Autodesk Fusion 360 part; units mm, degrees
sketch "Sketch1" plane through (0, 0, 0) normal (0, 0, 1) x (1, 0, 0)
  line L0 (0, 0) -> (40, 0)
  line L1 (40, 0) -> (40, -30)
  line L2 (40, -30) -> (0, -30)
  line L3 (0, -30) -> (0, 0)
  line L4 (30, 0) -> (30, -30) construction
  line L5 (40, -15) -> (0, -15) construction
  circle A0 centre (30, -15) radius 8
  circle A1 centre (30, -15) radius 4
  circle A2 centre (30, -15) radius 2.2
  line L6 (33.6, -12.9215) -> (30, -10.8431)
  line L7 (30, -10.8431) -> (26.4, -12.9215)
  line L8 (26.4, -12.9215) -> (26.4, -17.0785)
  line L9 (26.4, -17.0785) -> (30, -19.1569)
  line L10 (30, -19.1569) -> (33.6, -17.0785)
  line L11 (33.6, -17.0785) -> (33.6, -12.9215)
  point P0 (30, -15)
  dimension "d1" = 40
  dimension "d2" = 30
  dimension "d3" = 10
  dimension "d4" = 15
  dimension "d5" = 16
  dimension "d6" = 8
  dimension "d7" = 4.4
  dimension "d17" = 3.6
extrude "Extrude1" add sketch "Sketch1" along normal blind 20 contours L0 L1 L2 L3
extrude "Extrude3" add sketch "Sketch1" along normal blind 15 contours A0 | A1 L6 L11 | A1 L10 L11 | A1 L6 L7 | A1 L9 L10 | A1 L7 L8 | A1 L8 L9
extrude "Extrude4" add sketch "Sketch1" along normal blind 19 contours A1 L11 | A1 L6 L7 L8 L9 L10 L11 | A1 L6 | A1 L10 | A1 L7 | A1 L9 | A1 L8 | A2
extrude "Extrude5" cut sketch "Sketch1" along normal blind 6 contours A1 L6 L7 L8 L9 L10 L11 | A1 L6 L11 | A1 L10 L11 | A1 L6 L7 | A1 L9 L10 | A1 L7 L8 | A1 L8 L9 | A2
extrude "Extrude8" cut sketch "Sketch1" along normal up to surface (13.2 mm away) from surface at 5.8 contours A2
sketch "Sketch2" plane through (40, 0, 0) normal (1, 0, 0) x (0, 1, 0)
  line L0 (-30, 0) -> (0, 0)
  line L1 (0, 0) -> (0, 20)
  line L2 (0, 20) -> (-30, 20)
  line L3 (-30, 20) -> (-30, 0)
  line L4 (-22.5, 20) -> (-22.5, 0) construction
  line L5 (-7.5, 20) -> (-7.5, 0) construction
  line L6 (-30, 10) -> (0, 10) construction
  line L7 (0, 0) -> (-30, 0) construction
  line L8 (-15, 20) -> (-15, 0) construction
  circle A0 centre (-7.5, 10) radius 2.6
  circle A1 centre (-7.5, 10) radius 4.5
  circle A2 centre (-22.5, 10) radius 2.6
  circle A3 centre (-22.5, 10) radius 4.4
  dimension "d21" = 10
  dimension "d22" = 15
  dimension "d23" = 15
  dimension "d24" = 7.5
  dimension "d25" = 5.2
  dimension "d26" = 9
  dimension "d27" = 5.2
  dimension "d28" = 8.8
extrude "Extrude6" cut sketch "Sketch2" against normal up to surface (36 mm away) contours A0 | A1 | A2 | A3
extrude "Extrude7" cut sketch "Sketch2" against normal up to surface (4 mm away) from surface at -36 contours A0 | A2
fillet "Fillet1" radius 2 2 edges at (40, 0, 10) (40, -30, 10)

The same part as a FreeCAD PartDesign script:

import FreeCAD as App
import Part
import Sketcher
from FreeCAD import Vector
Q = App.Units.Quantity


def edges_at(feature, points):
    """Names of the edges that pass closest to the given points."""
    edges = feature.Shape.Edges
    near = lambda p: min(range(len(edges)), key=lambda i: edges[i].distToShape(Part.Vertex(*p))[0])
    return sorted({f"Edge{near(p) + 1}" for p in points})


def add_polygon(sketch, points):
    """Adds a closed chain of lines whose ends are joined by coincident constraints."""
    first, n = sketch.GeometryCount, len(points)
    for a, b in zip(points, points[1:] + points[:1]):
        sketch.addGeometry(Part.LineSegment(App.Vector(*a, 0), App.Vector(*b, 0)), False)
    for i in range(n):
        sketch.addConstraint(Sketcher.Constraint("Coincident", first + i, 2, first + (i + 1) % n, 1))

doc = App.newDocument("Part")
body = doc.addObject("PartDesign::Body", "Body")

# Sketch on XY plane
sketch1 = doc.addObject("Sketcher::SketchObject", "Sketch")
body.addObject(sketch1)
sketch1.AttachmentSupport = (doc.XY_Plane, [""])
sketch1.MapMode = "FlatFace"
add_polygon(sketch1, [(40, 0), (0, 0), (0, -30), (40, -30)])  # lines 0-3
sketch1.addGeometry(Part.Circle(Vector(30, -15, 0), Vector(0, 0, 1), 8), False)  # 4
sketch1.addConstraint(Sketcher.Constraint("Horizontal", 0))
sketch1.addConstraint(Sketcher.Constraint("Vertical", 1))
sketch1.addConstraint(Sketcher.Constraint("Horizontal", 2))
sketch1.addConstraint(Sketcher.Constraint("Vertical", 3))
sketch1.addConstraint(Sketcher.Constraint("Coincident", 0, 2, -1, 1))
sketch1.addConstraint(Sketcher.Constraint("Diameter", 4, 16.0))
sketch1.addConstraint(Sketcher.Constraint("DistanceX", 0, 2, 0, 1, 40.0))
sketch1.addConstraint(Sketcher.Constraint("DistanceY", 1, 2, 1, 1, 30.0))
sketch1.addConstraint(Sketcher.Constraint("DistanceX", -1, 1, 4, 3, 30.0))
sketch1.addConstraint(Sketcher.Constraint("DistanceY", 4, 3, -1, 1, 15.0))
pad1 = doc.addObject("PartDesign::Pad", "Pad")
body.addObject(pad1)
pad1.Profile = sketch1
pad1.Length = 20

# Sketch on XY plane
sketch2 = doc.addObject("Sketcher::SketchObject", "Sketch001")
body.addObject(sketch2)
sketch2.AttachmentSupport = (doc.XY_Plane, [""])
sketch2.MapMode = "FlatFace"
sketch2.addGeometry(Part.Circle(Vector(30, -15, 0), Vector(0, 0, 1), 8), False)
sketch2.addGeometry(Part.Circle(Vector(30, -15, 0), Vector(0, 0, 1), 4), False)
sketch2.addConstraint(Sketcher.Constraint("Coincident", 1, 3, 0, 3))
sketch2.addConstraint(Sketcher.Constraint("Diameter", 0, 16.0))
sketch2.addConstraint(Sketcher.Constraint("Diameter", 1, 8.0))
sketch2.addConstraint(Sketcher.Constraint("DistanceX", -1, 1, 0, 3, 30.0))
sketch2.addConstraint(Sketcher.Constraint("DistanceY", 0, 3, -1, 1, 15.0))
pad2 = doc.addObject("PartDesign::Pad", "Pad001")
body.addObject(pad2)
pad2.Profile = sketch2
pad2.Length = 15

# Sketch on XY plane
sketch3 = doc.addObject("Sketcher::SketchObject", "Sketch002")
body.addObject(sketch3)
sketch3.AttachmentSupport = (doc.XY_Plane, [""])
sketch3.MapMode = "FlatFace"
sketch3.addGeometry(Part.Circle(Vector(30, -15, 0), Vector(0, 0, 1), 4), False)
sketch3.addConstraint(Sketcher.Constraint("Diameter", 0, 8.0))
sketch3.addConstraint(Sketcher.Constraint("DistanceX", -1, 1, 0, 3, 30.0))
sketch3.addConstraint(Sketcher.Constraint("DistanceY", 0, 3, -1, 1, 15.0))
pad3 = doc.addObject("PartDesign::Pad", "Pad002")
body.addObject(pad3)
pad3.Profile = sketch3
pad3.Length = 19

# Sketch on XY plane
sketch4 = doc.addObject("Sketcher::SketchObject", "Sketch003")
body.addObject(sketch4)
sketch4.AttachmentSupport = (doc.XY_Plane, [""])
sketch4.MapMode = "FlatFace"
add_polygon(sketch4, [(33.6, -12.9), (30, -10.8), (26.4, -12.9), (26.4, -17.1), (30, -19.2), (33.6, -17.1)])  # lines 0-5
sketch4.addConstraint(Sketcher.Constraint("Vertical", 2))
sketch4.addConstraint(Sketcher.Constraint("Vertical", 5))
sketch4.addConstraint(Sketcher.Constraint("Parallel", 0, 3))
sketch4.addConstraint(Sketcher.Constraint("Parallel", 1, 4))
sketch4.addConstraint(Sketcher.Constraint("Horizontal", 2, 2, 4, 2))
sketch4.addConstraint(Sketcher.Constraint("Horizontal", 1, 2, 5, 2))
sketch4.addConstraint(Sketcher.Constraint("Vertical", 0, 2, 3, 2))
sketch4.addConstraint(Sketcher.Constraint("DistanceX", -1, 1, 0, 2, 30.0))
sketch4.addConstraint(Sketcher.Constraint("DistanceX", 1, 2, 0, 2, 3.6))
sketch4.addConstraint(Sketcher.Constraint("Angle", 0, Q("150.0007 deg")))
sketch4.addConstraint(Sketcher.Constraint("DistanceY", 2, 2, 2, 1, 4.157))
sketch4.addConstraint(Sketcher.Constraint("DistanceY", 0, 2, -1, 1, 10.843))
pocket1 = doc.addObject("PartDesign::Pocket", "Pocket")
body.addObject(pocket1)
pocket1.Profile = sketch4
pocket1.Length = 6
pocket1.Reversed = True

# Sketch on XY plane
sketch5 = doc.addObject("Sketcher::SketchObject", "Sketch004")
body.addObject(sketch5)
sketch5.AttachmentSupport = (doc.XY_Plane, [""])
sketch5.MapMode = "FlatFace"
sketch5.AttachmentOffset = App.Placement(Vector(0, 0, 5.8), App.Rotation())
sketch5.addGeometry(Part.Circle(Vector(30, -15, 0), Vector(0, 0, 1), 2.2), False)
sketch5.addConstraint(Sketcher.Constraint("Diameter", 0, 4.4))
sketch5.addConstraint(Sketcher.Constraint("DistanceX", -1, 1, 0, 3, 30.0))
sketch5.addConstraint(Sketcher.Constraint("DistanceY", 0, 3, -1, 1, 15.0))
pocket2 = doc.addObject("PartDesign::Pocket", "Pocket001")
body.addObject(pocket2)
pocket2.Profile = sketch5
pocket2.Length = 13.2
pocket2.Reversed = True

# Sketch on YZ plane
sketch6 = doc.addObject("Sketcher::SketchObject", "Sketch005")
body.addObject(sketch6)
sketch6.AttachmentSupport = (doc.YZ_Plane, [""])
sketch6.MapMode = "FlatFace"
sketch6.AttachmentOffset = App.Placement(Vector(0, 0, 40), App.Rotation())
sketch6.addGeometry(Part.Circle(Vector(-7.5, 10, 0), Vector(0, 0, 1), 4.5), False)
sketch6.addGeometry(Part.Circle(Vector(-22.5, 10, 0), Vector(0, 0, 1), 4.4), False)
sketch6.addConstraint(Sketcher.Constraint("Horizontal", 0, 3, 1, 3))
sketch6.addConstraint(Sketcher.Constraint("Diameter", 0, 9.0))
sketch6.addConstraint(Sketcher.Constraint("Diameter", 1, 8.8))
sketch6.addConstraint(Sketcher.Constraint("DistanceY", -1, 1, 0, 3, 10.0))
sketch6.addConstraint(Sketcher.Constraint("DistanceX", 1, 3, 0, 3, 15.0))
sketch6.addConstraint(Sketcher.Constraint("DistanceX", 0, 3, -1, 1, 7.5))
pocket3 = doc.addObject("PartDesign::Pocket", "Pocket002")
body.addObject(pocket3)
pocket3.Profile = sketch6
pocket3.Length = 36

# Sketch on YZ plane
sketch7 = doc.addObject("Sketcher::SketchObject", "Sketch006")
body.addObject(sketch7)
sketch7.AttachmentSupport = (doc.YZ_Plane, [""])
sketch7.MapMode = "FlatFace"
sketch7.AttachmentOffset = App.Placement(Vector(0, 0, 4), App.Rotation())
sketch7.addGeometry(Part.Circle(Vector(-7.5, 10, 0), Vector(0, 0, 1), 2.6), False)
sketch7.addGeometry(Part.Circle(Vector(-22.5, 10, 0), Vector(0, 0, 1), 2.6), False)
sketch7.addConstraint(Sketcher.Constraint("Equal", 0, 1))
sketch7.addConstraint(Sketcher.Constraint("Horizontal", 0, 3, 1, 3))
sketch7.addConstraint(Sketcher.Constraint("Diameter", 0, 5.2))
sketch7.addConstraint(Sketcher.Constraint("DistanceY", -1, 1, 0, 3, 10.0))
sketch7.addConstraint(Sketcher.Constraint("DistanceX", 1, 3, 0, 3, 15.0))
sketch7.addConstraint(Sketcher.Constraint("DistanceX", 0, 3, -1, 1, 7.5))
pocket4 = doc.addObject("PartDesign::Pocket", "Pocket003")
body.addObject(pocket4)
pocket4.Profile = sketch7
pocket4.Length = 4
doc.recompute()

fillet = doc.addObject("PartDesign::Fillet", "Fillet")
body.addObject(fillet)
fillet.Base = (pocket4, edges_at(pocket4, [(40, 0, 10), (40, -30, 10)]))
fillet.Radius = 2

doc.recompute()
